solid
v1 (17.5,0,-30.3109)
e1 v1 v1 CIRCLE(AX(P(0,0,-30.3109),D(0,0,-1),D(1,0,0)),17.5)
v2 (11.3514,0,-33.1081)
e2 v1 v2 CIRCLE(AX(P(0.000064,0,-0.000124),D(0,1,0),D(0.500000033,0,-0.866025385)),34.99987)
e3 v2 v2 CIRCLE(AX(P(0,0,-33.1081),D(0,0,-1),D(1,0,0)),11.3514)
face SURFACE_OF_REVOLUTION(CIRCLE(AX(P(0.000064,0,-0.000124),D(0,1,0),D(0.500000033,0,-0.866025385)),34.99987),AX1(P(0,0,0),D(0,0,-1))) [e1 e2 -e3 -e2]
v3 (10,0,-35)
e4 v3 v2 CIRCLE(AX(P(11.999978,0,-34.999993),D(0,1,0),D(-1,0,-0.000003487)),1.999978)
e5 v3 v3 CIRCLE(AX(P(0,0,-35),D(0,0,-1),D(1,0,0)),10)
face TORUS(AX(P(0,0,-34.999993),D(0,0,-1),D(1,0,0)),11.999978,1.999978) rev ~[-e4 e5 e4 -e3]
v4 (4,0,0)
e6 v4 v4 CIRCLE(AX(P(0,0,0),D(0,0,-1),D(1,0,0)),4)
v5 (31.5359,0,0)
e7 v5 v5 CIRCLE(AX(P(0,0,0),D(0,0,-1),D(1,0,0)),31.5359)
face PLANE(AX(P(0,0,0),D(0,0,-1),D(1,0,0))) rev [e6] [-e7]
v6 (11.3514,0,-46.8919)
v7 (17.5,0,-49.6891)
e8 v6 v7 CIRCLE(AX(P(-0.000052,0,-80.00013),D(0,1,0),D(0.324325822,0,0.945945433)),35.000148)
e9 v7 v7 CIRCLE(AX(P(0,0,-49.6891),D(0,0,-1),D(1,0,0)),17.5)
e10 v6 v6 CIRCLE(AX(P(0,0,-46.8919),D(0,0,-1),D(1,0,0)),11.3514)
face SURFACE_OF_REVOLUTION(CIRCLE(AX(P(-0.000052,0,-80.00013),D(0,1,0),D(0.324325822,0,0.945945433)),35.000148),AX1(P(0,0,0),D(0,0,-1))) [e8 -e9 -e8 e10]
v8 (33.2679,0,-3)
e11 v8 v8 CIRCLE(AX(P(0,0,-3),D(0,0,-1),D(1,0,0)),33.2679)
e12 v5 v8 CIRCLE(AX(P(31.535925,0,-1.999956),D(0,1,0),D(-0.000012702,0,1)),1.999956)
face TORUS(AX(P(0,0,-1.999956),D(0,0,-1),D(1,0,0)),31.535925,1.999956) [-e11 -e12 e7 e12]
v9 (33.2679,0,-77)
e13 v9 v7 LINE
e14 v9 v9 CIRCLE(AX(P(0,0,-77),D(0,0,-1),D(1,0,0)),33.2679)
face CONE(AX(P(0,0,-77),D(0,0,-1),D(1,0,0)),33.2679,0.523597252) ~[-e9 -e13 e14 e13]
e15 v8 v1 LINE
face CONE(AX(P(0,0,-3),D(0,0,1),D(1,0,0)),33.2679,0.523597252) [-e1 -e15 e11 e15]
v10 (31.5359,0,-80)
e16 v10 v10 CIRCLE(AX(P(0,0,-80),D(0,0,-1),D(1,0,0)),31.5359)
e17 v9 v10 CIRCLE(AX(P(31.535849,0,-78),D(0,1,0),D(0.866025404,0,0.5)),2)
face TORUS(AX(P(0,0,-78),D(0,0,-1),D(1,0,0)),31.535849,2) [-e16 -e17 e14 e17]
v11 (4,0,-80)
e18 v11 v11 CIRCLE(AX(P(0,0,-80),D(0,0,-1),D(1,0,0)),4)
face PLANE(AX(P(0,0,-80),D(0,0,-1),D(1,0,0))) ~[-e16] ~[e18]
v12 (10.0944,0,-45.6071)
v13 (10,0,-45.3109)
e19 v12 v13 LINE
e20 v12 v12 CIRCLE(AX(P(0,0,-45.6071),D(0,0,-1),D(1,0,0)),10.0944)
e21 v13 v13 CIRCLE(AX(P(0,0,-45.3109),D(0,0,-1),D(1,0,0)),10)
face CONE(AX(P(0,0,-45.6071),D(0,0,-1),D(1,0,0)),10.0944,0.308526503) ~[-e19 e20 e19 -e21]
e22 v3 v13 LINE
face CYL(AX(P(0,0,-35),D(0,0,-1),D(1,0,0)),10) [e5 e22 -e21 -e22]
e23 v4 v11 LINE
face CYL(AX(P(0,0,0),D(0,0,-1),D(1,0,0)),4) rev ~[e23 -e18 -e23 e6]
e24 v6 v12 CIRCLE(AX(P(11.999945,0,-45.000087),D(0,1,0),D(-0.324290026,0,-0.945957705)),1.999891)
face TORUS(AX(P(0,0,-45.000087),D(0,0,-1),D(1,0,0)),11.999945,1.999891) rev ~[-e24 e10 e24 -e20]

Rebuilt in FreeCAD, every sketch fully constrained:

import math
import FreeCAD as App
import Part
import Sketcher
from FreeCAD import Vector
Q = App.Units.Quantity

doc = App.newDocument("Part")
body = doc.addObject("PartDesign::Body", "Body")

# Sketch on XZ plane
sketch1 = body.newObject("Sketcher::SketchObject", "Sketch")
sketch1.AttachmentSupport = (doc.getObject("XZ_Plane"), [""])
sketch1.MapMode = "FlatFace"
sketch1.addGeometry([
    Part.LineSegment(Vector(4, -80, 0), Vector(4, 0, 0)),  # 0
    Part.LineSegment(Vector(4, 0, 0), Vector(31.5359, 0, 0)),  # 1
    Part.ArcOfCircle(Part.Circle(Vector(31.5359, -2, 0), Vector(0, 0, 1), 2), math.radians(-30.000728), math.radians(90)),  # 2
    Part.LineSegment(Vector(33.2679, -3, 0), Vector(17.5, -30.3109, 0)),  # 3
    Part.ArcOfCircle(Part.Circle(Vector(0, 0, 0), Vector(0, 0, 1), 35.000009), math.radians(-71.075276), math.radians(-60.000009)),  # 4
    Part.ArcOfCircle(Part.Circle(Vector(12, -35, 0), Vector(0, 0, 1), 2), math.radians(108.923251), math.radians(180)),  # 5
    Part.LineSegment(Vector(10, -35, 0), Vector(10, -45.3109, 0)),  # 6
    Part.LineSegment(Vector(10, -45.3109, 0), Vector(10.0944, -45.6071, 0)),  # 7
    Part.ArcOfCircle(Part.Circle(Vector(12, -45, 0), Vector(0, 0, 1), 1.999992), math.radians(-162.328781), math.radians(-108.923251)),  # 8
    Part.ArcOfCircle(Part.Circle(Vector(0, -80, 0), Vector(0, 0, 1), 35.000008), math.radians(60.000009), math.radians(71.075276)),  # 9
    Part.LineSegment(Vector(17.5, -49.6891, 0), Vector(33.2679, -77, 0)),  # 10
    Part.ArcOfCircle(Part.Circle(Vector(31.5359, -78, 0), Vector(0, 0, 1), 1.999956), math.radians(-90), math.radians(30.000728)),  # 11
    Part.LineSegment(Vector(31.5359, -80, 0), Vector(4, -80, 0)),  # 12
], False)
sketch1.addConstraint([
    Sketcher.Constraint("Coincident", 0, 2, 1, 1),
    Sketcher.Constraint("Tangent", 1, 2, 2, 2),
    Sketcher.Constraint("Tangent", 2, 1, 3, 1),
    Sketcher.Constraint("Coincident", 3, 2, 4, 2),
    Sketcher.Constraint("Tangent", 4, 1, 5, 1),
    Sketcher.Constraint("Tangent", 5, 2, 6, 1),
    Sketcher.Constraint("Coincident", 6, 2, 7, 1),
    Sketcher.Constraint("Tangent", 7, 2, 8, 1),
    Sketcher.Constraint("Tangent", 8, 2, 9, 2),
    Sketcher.Constraint("Coincident", 9, 1, 10, 1),
    Sketcher.Constraint("Tangent", 10, 2, 11, 2),
    Sketcher.Constraint("Tangent", 11, 1, 12, 1),
    Sketcher.Constraint("Coincident", 12, 2, 0, 1),
    Sketcher.Constraint("Vertical", 0),
    Sketcher.Constraint("Horizontal", 1),
    Sketcher.Constraint("Vertical", 6),
    Sketcher.Constraint("Horizontal", 12),
    Sketcher.Constraint("Coincident", 4, 3, -1, 1),
    Sketcher.Constraint("Equal", 2, 5),
    Sketcher.Constraint("Equal", 5, 8),
    Sketcher.Constraint("Equal", 4, 9),
    Sketcher.Constraint("Equal", 8, 11),
    Sketcher.Constraint("PointOnObject", 9, 3, -2),
    Sketcher.Constraint("PointOnObject", 0, 2, -1),
    Sketcher.Constraint("Horizontal", 9, 3, 11, 1),
    Sketcher.Constraint("Vertical", 5, 3, 8, 3),
    Sketcher.Constraint("Vertical", 2, 3, 11, 3),
    Sketcher.Constraint("Vertical", 3, 2, 9, 1),
    Sketcher.Constraint("Radius", 2, 2.0),
    Sketcher.Constraint("Radius", 4, 35.0),
    Sketcher.Constraint("DistanceY", 0, 1, 0, 2, 80.0),
    Sketcher.Constraint("Angle", 10, Q("-60 deg")),
    Sketcher.Constraint("DistanceY", 5, 3, -1, 1, 35.0),
    Sketcher.Constraint("DistanceX", -1, 1, 0, 2, 4.0),
    Sketcher.Constraint("DistanceY", 6, 2, 3, 2, 15.0),
    Sketcher.Constraint("DistanceX", -1, 1, 3, 2, 17.5),
])
revolution = body.newObject("PartDesign::Revolution", "Revolution")
revolution.Profile = sketch1
revolution.ReferenceAxis = (sketch1, ["V_Axis"])
revolution.Angle = 360

doc.recompute()
